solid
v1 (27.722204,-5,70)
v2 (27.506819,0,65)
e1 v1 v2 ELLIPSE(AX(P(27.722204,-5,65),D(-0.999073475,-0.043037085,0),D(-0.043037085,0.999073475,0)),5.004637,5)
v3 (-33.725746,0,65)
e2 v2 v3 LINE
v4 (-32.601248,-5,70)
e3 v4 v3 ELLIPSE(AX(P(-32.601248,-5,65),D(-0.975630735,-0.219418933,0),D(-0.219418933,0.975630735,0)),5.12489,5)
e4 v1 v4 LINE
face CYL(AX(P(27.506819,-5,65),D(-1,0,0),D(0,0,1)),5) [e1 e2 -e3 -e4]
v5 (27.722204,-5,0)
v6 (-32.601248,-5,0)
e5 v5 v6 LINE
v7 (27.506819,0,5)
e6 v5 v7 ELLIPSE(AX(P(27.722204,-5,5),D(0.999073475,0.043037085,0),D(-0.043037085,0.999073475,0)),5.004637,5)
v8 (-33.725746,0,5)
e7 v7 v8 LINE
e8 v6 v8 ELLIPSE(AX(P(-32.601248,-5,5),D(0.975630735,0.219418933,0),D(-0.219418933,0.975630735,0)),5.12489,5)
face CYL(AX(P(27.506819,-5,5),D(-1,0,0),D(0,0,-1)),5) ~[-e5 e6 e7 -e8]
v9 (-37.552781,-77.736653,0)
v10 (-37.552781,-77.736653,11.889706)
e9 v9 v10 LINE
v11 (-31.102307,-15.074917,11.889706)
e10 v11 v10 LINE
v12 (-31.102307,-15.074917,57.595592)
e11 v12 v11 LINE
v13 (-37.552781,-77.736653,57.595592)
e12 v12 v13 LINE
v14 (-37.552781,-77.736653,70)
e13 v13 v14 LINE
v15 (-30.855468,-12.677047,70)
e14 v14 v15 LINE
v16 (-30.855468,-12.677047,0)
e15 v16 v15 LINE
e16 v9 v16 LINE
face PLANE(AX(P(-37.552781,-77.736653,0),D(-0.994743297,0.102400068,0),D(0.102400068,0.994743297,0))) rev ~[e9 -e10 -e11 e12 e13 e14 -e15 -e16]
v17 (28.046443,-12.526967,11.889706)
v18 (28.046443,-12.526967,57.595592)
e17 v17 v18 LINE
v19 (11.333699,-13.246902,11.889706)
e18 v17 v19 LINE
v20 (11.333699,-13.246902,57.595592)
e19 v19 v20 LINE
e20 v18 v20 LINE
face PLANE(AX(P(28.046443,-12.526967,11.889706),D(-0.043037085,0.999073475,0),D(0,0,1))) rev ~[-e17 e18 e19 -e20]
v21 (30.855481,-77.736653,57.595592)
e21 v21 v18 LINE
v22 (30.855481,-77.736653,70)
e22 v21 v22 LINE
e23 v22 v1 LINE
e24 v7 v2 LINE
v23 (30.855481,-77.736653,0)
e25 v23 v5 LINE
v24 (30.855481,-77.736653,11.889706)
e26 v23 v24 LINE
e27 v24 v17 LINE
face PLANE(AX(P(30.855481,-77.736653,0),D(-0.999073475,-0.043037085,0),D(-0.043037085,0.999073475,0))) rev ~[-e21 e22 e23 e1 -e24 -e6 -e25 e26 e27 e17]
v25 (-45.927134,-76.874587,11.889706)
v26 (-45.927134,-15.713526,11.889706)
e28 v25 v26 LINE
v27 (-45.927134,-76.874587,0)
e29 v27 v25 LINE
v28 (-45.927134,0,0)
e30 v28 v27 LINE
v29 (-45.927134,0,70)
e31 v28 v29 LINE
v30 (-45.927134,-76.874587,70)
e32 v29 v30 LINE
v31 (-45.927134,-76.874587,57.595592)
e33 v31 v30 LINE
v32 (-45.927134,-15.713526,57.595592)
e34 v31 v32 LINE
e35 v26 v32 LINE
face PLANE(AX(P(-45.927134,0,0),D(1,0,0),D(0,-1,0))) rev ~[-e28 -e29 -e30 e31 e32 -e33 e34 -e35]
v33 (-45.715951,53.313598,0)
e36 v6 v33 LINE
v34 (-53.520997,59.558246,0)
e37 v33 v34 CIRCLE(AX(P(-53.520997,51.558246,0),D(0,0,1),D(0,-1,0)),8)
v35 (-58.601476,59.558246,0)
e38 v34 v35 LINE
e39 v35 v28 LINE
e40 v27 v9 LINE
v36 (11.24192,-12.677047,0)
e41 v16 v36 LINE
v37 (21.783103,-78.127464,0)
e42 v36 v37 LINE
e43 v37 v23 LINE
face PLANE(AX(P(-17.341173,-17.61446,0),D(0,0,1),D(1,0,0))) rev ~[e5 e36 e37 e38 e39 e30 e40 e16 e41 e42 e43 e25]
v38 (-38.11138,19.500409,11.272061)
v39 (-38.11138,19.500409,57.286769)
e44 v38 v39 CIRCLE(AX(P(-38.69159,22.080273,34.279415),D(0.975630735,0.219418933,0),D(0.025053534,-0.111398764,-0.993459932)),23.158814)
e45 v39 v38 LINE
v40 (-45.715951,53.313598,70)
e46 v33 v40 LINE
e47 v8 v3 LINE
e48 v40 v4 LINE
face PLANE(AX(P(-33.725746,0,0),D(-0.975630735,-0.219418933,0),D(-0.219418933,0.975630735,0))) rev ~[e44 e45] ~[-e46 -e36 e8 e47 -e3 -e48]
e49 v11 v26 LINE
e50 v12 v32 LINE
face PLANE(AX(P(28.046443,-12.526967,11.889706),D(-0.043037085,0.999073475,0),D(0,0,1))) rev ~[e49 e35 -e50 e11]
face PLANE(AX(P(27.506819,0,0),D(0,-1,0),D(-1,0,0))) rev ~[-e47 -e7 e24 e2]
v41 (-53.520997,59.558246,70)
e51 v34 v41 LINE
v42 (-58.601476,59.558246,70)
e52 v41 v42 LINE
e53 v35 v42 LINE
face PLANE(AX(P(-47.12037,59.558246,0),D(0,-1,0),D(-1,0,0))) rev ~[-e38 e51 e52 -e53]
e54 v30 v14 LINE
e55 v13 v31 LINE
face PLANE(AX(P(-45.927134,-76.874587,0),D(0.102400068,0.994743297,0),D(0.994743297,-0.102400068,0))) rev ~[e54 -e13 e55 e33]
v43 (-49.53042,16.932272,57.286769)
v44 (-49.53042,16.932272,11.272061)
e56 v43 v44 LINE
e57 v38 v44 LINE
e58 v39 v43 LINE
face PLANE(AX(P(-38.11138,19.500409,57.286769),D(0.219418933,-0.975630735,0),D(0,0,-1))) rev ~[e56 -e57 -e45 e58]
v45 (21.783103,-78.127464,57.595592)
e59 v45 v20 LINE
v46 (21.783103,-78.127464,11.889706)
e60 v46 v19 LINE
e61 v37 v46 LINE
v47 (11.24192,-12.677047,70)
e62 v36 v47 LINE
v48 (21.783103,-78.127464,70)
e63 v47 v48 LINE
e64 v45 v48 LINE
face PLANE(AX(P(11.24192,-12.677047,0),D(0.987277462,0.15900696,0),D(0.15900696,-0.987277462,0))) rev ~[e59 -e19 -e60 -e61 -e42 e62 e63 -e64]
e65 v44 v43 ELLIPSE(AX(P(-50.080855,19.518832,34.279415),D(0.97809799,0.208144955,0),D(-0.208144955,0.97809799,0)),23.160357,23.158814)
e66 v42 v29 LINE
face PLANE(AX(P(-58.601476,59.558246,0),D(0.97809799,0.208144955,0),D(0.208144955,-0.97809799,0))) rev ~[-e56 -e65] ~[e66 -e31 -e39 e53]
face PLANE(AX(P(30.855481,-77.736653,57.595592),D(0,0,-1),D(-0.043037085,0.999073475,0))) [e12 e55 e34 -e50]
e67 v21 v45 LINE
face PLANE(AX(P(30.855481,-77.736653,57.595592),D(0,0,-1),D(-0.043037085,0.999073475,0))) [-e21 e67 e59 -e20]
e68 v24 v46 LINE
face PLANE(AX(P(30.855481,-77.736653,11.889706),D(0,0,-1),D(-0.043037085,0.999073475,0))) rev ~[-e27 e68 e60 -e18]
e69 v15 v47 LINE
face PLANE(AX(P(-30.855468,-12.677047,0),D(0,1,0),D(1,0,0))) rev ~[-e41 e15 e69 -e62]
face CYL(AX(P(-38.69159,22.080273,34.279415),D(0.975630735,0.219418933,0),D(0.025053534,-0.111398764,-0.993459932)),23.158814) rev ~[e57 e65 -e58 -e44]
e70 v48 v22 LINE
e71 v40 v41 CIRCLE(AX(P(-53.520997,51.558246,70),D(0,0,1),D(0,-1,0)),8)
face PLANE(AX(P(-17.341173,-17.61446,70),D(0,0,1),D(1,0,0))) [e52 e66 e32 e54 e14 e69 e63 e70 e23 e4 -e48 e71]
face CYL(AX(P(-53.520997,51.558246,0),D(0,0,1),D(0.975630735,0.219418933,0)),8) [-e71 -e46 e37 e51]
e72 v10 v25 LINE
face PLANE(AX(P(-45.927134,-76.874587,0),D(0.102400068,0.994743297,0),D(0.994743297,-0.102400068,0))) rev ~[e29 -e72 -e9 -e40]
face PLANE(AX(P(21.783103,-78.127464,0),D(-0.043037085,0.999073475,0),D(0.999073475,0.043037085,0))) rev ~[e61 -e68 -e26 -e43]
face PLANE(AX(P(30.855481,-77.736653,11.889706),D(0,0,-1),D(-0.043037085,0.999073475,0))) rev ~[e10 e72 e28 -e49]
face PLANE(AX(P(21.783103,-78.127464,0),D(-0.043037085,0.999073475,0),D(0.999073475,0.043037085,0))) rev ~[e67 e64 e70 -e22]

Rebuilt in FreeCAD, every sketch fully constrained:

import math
import FreeCAD as App
import Part
import Sketcher

V = App.Vector


def edges_at(feature, points):
    """Names of the edges that pass closest to the given points."""
    edges = feature.Shape.Edges
    near = lambda p: min(range(len(edges)), key=lambda i: edges[i].distToShape(Part.Vertex(*p))[0])
    return sorted({f"Edge{near(p) + 1}" for p in points})


def add_polygon(sketch, points):
    """Adds a closed chain of lines whose ends are joined by coincident constraints."""
    first, n = sketch.GeometryCount, len(points)
    for a, b in zip(points, points[1:] + points[:1]):
        sketch.addGeometry(Part.LineSegment(App.Vector(*a, 0), App.Vector(*b, 0)), False)
    for i in range(n):
        sketch.addConstraint(Sketcher.Constraint("Coincident", first + i, 2, first + (i + 1) % n, 1))

doc = App.newDocument("Part")
body = doc.addObject("PartDesign::Body", "Body")

sketch1 = doc.addObject("Sketcher::SketchObject", "Sketch")
body.addObject(sketch1)
sketch1.AttachmentSupport = (doc.XY_Plane, [""])
sketch1.MapMode = "FlatFace"
add_polygon(sketch1, [(-47.12037, 59.558246), (-58.601476, 59.558246), (-45.927134, 0), (-45.927134, -76.874587), (-37.552781, -77.736653), (-30.855468, -12.677047), (11.24192, -12.677047), (21.783103, -78.127464), (30.855481, -77.736653), (27.506819, 0), (-33.725746, 0)])
sketch1.addConstraint(Sketcher.Constraint("Horizontal", 0))
sketch1.addConstraint(Sketcher.Constraint("Vertical", 2))
sketch1.addConstraint(Sketcher.Constraint("Horizontal", 5))
sketch1.addConstraint(Sketcher.Constraint("Horizontal", 9))
sketch1.addConstraint(Sketcher.Constraint("PointOnObject", 1, 2, -1))
sketch1.addConstraint(Sketcher.Constraint("PointOnObject", 8, 2, -1))
sketch1.addConstraint(Sketcher.Constraint("Distance", 1, 60.891901))
sketch1.addConstraint(Sketcher.Constraint("DistanceY", 3, 2, 0, 2, 137.2949))
sketch1.addConstraint(Sketcher.Constraint("DistanceX", 3, 2, 5, 2, 48.794702))
sketch1.addConstraint(Sketcher.Constraint("DistanceX", 5, 2, 8, 2, 16.264899))
sketch1.addConstraint(Sketcher.Constraint("Distance", 7, 9.080791))
sketch1.addConstraint(Sketcher.Constraint("Distance", 10, 61.04589))
sketch1.addConstraint(Sketcher.Constraint("DistanceX", 0, 2, 0, 1, 11.481106))
sketch1.addConstraint(Sketcher.Constraint("DistanceX", 5, 1, 5, 2, 42.097388))
sketch1.addConstraint(Sketcher.Constraint("DistanceX", 9, 2, 9, 1, 61.232565))
sketch1.addConstraint(Sketcher.Constraint("DistanceY", 2, 2, 2, 1, 76.874587))
sketch1.addConstraint(Sketcher.Constraint("DistanceX", 3, 2, -1, 1, 37.552781))
sketch1.addConstraint(Sketcher.Constraint("DistanceX", -1, 1, 7, 2, 30.855481))
sketch1.addConstraint(Sketcher.Constraint("DistanceX", 10, 2, -1, 1, 47.12037))
sketch1.addConstraint(Sketcher.Constraint("DistanceY", 2, 2, 4, 2, 64.19754))
sketch1.addConstraint(Sketcher.Constraint("DistanceY", 6, 2, 3, 2, 0.390811))
sketch1.addConstraint(Sketcher.Constraint("DistanceX", 4, 2, 6, 2, 52.63857))
pad1 = doc.addObject("PartDesign::Pad", "Pad")
body.addObject(pad1)
pad1.Profile = sketch1
pad1.Length = 70

sketch2 = doc.addObject("Sketcher::SketchObject", "Sketch001")
body.addObject(sketch2)
sketch2.Placement = App.Placement(V(27.455871, 1.182716, 0), App.Rotation(V(-0.043037085, 0.999073475, 0), V(0, 0, 0.999999999), V(0.999073475, 0.043037085, 0), "ZXY"))
add_polygon(sketch2, [(-79, 58), (-79, 12), (-14, 12), (-14, 58)])
sketch2.addConstraint(Sketcher.Constraint("Vertical", 0))
sketch2.addConstraint(Sketcher.Constraint("Horizontal", 1))
sketch2.addConstraint(Sketcher.Constraint("Vertical", 2))
sketch2.addConstraint(Sketcher.Constraint("Horizontal", 3))
sketch2.addConstraint(Sketcher.Constraint("DistanceX", 1, 1, 1, 2, 65.270161))
sketch2.addConstraint(Sketcher.Constraint("DistanceY", 0, 2, 0, 1, 45.705886))
sketch2.addConstraint(Sketcher.Constraint("DistanceX", 0, 2, -1, 1, 78.992558))
sketch2.addConstraint(Sketcher.Constraint("DistanceY", -1, 1, 2, 2, 57.595592))
pocket1 = doc.addObject("PartDesign::Pocket", "Pocket")
body.addObject(pocket1)
pocket1.Profile = sketch2
pocket1.Length = 127.5

sketch3 = doc.addObject("Sketcher::SketchObject", "Sketch002")
body.addObject(sketch3)
sketch3.Placement = App.Placement(V(-32.102031, -7.219733, 0), App.Rotation(V(-0.219418933, 0.975630735, 0), V(0, 0, 0.999999999), V(0.975630735, 0.219418933, 0), "ZXY"))
sketch3.addGeometry(Part.LineSegment(V(27, 57, 0), V(27, 11, 0)), False)
sketch3.addGeometry(Part.ArcOfCircle(Part.Circle(V(30, 34, 0), V(0, 0, 1), 23), math.radians(-97), math.radians(97)), False)
sketch3.addConstraint(Sketcher.Constraint("Coincident", 0, 1, 1, 2))
sketch3.addConstraint(Sketcher.Constraint("Coincident", 1, 1, 0, 2))
sketch3.addConstraint(Sketcher.Constraint("Vertical", 0))
sketch3.addConstraint(Sketcher.Constraint("Radius", 1, 23.158814))
sketch3.addConstraint(Sketcher.Constraint("DistanceY", 0, 2, 0, 1, 46.014708))
sketch3.addConstraint(Sketcher.Constraint("DistanceX", -1, 1, 1, 3, 30.03186))
sketch3.addConstraint(Sketcher.Constraint("DistanceY", -1, 1, 0, 1, 57.286769))
pocket2 = doc.addObject("PartDesign::Pocket", "Pocket001")
body.addObject(pocket2)
pocket2.Profile = sketch3
pocket2.Length = 41.3
doc.recompute()

fillet = doc.addObject("PartDesign::Fillet", "Fillet")
body.addObject(fillet)
fillet.Base = (pocket2, edges_at(pocket2, [(-3.109, 0, 0), (-3.109, 0, 70)]))
fillet.Radius = 5
doc.recompute()

fillet2 = doc.addObject("PartDesign::Fillet", "Fillet001")
body.addObject(fillet2)
fillet2.Base = (fillet, edges_at(fillet, [(-47.12, 59.558, 35)]))
fillet2.Radius = 8

doc.recompute()
